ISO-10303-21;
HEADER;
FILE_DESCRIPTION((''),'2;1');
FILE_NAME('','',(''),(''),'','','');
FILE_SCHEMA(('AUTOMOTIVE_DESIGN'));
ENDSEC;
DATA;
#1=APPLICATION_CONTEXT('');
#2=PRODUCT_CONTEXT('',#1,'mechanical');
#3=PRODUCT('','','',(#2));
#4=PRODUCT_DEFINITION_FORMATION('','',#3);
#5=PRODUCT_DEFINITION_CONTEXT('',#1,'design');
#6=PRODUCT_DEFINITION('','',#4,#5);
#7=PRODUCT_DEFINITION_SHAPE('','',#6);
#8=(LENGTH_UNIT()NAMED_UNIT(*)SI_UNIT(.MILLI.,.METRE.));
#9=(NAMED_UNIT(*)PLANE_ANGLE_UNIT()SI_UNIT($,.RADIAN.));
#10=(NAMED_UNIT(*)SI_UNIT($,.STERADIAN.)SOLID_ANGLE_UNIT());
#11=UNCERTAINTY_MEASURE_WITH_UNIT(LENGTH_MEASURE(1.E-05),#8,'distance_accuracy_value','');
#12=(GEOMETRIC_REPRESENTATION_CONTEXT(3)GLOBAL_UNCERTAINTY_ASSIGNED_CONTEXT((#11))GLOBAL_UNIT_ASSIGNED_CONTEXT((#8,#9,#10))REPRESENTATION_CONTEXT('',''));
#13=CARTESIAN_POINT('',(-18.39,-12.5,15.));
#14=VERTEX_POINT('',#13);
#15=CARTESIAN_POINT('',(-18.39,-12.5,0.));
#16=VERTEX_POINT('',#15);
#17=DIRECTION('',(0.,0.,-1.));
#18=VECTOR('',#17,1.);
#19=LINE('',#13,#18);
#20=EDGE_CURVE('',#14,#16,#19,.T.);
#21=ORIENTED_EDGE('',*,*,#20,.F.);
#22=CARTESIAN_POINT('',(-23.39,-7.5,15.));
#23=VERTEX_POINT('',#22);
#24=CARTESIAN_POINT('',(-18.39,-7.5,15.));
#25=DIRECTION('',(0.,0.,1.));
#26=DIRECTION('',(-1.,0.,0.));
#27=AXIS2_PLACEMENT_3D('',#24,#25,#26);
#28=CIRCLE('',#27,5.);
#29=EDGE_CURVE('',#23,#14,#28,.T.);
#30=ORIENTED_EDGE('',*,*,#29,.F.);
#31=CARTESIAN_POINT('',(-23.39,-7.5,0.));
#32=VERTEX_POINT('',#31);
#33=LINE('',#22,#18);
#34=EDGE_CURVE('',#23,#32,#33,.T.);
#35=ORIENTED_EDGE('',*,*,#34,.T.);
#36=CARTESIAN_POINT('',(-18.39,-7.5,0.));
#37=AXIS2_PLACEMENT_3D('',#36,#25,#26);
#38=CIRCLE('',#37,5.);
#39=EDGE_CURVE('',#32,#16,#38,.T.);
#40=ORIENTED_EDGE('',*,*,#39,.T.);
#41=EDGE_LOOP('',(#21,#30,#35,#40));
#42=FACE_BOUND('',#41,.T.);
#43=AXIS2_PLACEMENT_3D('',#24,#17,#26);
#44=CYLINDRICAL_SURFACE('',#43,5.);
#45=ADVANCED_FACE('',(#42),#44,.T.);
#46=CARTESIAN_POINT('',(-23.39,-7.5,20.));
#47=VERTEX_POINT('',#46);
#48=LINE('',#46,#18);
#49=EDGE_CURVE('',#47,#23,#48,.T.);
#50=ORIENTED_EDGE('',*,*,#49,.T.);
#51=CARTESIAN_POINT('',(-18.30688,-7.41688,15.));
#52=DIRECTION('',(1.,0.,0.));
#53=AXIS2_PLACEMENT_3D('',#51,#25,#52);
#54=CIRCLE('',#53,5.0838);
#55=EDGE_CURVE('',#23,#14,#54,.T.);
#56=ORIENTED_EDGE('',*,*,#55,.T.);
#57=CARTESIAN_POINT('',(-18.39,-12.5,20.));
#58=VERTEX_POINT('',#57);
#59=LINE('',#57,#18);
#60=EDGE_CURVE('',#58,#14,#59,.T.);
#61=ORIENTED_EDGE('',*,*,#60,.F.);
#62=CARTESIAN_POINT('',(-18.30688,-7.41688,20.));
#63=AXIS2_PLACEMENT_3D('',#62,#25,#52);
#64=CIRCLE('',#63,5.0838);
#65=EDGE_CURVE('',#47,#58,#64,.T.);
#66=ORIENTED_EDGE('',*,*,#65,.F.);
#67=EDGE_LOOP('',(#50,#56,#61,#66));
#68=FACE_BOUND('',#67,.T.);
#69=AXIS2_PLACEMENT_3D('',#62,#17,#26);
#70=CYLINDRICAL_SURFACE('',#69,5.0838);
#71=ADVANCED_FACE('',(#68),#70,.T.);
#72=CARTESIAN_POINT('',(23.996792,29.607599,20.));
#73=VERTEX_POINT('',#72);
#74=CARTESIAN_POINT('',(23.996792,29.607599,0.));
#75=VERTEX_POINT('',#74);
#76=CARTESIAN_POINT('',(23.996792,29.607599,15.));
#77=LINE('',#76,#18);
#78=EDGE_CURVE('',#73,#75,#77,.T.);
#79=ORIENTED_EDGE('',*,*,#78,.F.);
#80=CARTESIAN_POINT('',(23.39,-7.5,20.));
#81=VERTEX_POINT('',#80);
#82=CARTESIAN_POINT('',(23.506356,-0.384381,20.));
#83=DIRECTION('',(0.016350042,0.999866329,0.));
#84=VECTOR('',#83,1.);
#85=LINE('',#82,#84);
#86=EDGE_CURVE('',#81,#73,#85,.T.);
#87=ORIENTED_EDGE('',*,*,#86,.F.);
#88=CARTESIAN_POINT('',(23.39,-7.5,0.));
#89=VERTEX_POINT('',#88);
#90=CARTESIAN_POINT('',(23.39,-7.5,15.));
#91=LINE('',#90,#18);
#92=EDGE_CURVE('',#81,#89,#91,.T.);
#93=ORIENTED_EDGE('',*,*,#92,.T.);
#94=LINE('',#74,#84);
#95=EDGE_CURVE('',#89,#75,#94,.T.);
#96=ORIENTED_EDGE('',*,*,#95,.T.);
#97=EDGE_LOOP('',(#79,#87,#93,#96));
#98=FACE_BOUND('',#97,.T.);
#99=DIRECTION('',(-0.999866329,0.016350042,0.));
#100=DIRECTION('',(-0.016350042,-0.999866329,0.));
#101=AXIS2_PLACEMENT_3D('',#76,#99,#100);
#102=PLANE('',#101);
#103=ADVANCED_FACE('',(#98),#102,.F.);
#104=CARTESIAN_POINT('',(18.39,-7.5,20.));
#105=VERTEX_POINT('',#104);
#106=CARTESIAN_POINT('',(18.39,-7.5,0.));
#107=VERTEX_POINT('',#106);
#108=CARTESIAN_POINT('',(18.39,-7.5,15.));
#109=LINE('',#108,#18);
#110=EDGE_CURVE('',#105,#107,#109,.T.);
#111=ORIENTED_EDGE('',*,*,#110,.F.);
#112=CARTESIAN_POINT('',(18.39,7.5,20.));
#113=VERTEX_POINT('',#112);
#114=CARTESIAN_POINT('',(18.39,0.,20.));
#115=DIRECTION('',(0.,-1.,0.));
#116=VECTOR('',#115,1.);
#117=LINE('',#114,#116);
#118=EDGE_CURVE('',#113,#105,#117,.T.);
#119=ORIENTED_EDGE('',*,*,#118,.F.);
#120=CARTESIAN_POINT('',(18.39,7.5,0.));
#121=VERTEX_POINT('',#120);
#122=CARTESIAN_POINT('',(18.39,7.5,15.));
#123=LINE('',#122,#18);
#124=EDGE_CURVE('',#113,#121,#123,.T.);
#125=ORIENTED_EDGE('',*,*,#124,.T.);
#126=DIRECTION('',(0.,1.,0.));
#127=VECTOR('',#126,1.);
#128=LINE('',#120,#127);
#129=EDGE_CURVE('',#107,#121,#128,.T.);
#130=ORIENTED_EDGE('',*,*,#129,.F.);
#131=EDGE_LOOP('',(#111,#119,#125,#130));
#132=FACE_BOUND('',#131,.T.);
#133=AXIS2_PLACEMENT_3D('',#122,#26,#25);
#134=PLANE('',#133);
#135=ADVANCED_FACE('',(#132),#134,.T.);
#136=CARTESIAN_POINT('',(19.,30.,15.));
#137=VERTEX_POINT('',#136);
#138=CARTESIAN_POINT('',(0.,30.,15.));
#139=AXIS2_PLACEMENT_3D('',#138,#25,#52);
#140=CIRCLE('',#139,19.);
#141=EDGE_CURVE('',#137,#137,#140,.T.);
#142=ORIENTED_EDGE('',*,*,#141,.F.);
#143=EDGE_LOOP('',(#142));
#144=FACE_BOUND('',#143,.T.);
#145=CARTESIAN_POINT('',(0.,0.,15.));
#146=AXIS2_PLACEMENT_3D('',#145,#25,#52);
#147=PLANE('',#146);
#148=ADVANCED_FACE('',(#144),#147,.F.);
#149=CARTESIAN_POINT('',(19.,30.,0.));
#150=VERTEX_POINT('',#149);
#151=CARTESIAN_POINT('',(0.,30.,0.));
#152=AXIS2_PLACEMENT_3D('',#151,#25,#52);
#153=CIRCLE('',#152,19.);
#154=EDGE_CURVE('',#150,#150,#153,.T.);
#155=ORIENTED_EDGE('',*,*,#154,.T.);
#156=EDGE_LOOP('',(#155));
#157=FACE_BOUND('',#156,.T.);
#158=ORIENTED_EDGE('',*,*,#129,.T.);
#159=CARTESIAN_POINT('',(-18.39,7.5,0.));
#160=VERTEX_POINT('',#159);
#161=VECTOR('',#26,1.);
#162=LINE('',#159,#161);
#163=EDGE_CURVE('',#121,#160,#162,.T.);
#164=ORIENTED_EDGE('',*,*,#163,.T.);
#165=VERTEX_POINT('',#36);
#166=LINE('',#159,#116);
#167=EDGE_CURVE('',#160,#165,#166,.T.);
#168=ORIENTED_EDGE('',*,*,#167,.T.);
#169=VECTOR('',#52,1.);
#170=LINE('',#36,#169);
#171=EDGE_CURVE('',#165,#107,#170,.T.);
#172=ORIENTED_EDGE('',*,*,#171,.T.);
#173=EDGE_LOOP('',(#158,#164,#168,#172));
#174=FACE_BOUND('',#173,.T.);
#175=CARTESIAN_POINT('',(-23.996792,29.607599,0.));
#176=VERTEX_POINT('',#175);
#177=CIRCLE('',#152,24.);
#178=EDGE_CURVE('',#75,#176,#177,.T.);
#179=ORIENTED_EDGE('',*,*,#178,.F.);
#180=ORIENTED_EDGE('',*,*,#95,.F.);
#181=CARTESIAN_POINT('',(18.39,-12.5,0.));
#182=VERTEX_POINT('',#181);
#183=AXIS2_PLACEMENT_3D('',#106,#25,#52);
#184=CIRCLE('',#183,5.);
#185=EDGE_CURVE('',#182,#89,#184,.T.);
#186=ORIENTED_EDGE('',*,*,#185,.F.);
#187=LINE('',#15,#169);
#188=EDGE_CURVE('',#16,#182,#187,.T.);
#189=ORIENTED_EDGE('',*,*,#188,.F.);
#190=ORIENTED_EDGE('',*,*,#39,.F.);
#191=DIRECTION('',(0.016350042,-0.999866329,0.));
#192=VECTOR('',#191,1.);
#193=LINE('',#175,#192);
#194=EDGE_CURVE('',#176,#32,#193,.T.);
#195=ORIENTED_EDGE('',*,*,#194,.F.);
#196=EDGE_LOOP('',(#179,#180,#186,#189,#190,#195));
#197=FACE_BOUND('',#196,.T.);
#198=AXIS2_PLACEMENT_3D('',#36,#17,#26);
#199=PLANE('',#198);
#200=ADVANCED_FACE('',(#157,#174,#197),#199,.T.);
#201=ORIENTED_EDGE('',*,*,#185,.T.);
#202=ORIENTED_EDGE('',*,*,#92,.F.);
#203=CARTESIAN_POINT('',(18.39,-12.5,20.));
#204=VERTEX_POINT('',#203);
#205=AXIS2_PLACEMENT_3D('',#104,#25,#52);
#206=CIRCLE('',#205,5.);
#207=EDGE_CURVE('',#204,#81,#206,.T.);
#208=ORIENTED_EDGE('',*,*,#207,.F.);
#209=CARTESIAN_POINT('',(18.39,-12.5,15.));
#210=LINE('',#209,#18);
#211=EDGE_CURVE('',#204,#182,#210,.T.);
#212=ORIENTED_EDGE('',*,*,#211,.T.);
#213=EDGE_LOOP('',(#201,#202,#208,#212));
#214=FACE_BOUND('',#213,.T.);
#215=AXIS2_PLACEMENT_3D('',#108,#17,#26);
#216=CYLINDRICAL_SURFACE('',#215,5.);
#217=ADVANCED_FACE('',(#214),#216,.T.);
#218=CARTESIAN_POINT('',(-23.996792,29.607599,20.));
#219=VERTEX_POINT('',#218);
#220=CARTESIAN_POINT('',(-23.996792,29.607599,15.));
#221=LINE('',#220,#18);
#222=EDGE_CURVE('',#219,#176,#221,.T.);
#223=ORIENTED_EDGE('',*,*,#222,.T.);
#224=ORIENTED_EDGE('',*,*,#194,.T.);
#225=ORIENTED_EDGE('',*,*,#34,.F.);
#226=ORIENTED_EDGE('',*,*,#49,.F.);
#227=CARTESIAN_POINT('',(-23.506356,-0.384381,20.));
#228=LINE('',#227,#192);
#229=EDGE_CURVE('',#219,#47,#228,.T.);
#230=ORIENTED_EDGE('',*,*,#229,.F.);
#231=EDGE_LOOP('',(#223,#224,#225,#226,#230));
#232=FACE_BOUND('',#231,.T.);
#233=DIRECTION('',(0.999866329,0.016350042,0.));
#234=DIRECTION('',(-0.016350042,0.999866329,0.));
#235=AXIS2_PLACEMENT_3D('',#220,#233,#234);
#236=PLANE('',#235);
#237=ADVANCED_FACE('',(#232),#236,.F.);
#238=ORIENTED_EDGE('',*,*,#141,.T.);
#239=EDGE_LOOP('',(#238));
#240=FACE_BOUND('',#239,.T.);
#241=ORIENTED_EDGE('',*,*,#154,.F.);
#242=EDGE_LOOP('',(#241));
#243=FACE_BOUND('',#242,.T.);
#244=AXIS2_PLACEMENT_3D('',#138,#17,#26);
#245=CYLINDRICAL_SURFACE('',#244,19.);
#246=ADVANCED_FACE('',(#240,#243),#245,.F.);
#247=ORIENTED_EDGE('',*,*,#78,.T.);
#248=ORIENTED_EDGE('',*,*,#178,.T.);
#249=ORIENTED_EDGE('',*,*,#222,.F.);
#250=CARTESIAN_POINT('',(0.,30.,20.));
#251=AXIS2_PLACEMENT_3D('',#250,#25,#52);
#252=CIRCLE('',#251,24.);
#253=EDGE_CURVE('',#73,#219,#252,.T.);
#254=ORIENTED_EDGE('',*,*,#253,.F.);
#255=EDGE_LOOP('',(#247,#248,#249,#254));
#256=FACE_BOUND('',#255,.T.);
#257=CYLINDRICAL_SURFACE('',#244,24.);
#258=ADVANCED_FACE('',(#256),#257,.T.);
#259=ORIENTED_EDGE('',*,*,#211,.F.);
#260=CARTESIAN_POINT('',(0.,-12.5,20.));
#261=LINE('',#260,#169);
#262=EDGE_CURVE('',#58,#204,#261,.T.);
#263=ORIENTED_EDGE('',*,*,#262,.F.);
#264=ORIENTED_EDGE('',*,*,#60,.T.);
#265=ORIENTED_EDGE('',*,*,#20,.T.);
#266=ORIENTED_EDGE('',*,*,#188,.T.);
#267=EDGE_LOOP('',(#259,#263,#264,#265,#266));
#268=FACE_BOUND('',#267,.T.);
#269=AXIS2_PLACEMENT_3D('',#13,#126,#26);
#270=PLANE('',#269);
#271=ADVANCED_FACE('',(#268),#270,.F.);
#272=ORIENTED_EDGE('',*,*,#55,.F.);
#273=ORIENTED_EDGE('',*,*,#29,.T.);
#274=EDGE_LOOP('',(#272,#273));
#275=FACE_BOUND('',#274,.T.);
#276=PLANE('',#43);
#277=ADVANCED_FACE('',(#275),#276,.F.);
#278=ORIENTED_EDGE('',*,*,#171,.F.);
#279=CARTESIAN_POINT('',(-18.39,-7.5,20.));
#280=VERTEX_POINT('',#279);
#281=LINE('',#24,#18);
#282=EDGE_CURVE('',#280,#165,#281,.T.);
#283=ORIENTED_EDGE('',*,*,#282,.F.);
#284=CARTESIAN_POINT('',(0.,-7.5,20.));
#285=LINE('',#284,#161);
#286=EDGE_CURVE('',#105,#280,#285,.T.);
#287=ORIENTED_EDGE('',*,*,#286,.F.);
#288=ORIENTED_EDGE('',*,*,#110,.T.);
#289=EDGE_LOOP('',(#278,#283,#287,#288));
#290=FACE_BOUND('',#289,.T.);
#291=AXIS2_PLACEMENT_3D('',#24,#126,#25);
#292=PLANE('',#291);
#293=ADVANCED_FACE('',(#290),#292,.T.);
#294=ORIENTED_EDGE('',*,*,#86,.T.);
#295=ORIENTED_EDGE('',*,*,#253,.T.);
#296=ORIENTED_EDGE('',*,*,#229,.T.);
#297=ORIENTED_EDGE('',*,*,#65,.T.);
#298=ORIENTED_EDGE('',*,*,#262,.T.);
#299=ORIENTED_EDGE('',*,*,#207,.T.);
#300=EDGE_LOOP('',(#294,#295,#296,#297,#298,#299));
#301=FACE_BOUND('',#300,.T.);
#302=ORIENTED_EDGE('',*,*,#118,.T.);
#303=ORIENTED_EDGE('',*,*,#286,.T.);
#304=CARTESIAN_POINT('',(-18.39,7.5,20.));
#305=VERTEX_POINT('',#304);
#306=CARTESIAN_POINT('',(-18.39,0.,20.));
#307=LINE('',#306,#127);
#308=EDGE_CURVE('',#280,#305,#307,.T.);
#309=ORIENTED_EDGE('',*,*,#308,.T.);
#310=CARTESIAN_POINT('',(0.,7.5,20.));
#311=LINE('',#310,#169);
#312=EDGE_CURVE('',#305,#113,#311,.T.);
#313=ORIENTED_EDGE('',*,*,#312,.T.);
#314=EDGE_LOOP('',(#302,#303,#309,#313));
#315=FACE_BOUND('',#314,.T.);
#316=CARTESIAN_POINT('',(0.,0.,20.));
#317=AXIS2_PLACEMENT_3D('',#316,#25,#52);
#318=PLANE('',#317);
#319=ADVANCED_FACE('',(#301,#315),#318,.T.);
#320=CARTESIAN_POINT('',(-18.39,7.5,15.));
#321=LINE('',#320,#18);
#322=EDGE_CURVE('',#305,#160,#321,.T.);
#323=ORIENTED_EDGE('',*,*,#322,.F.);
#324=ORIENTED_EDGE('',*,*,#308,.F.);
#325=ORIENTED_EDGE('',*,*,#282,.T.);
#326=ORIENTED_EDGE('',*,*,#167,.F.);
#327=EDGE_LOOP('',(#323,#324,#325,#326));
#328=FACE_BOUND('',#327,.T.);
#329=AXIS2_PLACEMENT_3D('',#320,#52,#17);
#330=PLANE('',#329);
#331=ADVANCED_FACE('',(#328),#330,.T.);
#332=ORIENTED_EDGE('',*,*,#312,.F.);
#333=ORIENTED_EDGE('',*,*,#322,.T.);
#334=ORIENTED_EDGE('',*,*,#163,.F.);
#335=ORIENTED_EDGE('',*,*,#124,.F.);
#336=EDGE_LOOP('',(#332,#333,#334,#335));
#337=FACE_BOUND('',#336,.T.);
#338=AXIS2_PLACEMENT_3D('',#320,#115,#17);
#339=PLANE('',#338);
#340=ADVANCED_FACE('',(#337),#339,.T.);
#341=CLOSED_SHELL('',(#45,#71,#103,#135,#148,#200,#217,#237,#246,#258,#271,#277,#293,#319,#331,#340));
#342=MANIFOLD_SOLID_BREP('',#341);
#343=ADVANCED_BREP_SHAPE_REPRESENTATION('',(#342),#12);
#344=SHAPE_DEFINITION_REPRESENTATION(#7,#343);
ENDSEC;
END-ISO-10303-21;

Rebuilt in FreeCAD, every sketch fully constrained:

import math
import FreeCAD as App
import Part
import Sketcher
from FreeCAD import Vector
Q = App.Units.Quantity


def add_polygon(sketch, points):
    """Adds a closed chain of lines whose ends are joined by coincident constraints."""
    first, n = sketch.GeometryCount, len(points)
    for a, b in zip(points, points[1:] + points[:1]):
        sketch.addGeometry(Part.LineSegment(App.Vector(*a, 0), App.Vector(*b, 0)), False)
    for i in range(n):
        sketch.addConstraint(Sketcher.Constraint("Coincident", first + i, 2, first + (i + 1) % n, 1))

doc = App.newDocument("Part")
body = doc.addObject("PartDesign::Body", "Body")

# Sketch on XY plane
sketch1 = body.newObject("Sketcher::SketchObject", "Sketch")
sketch1.AttachmentSupport = (doc.getObject("XY_Plane"), [""])
sketch1.MapMode = "FlatFace"
sketch1.addGeometry(Part.LineSegment(Vector(-18.39, -12.5, 0), Vector(18.39, -12.5, 0)), False)  # 0
sketch1.addGeometry(Part.ArcOfCircle(Part.Circle(Vector(18.39, -7.5, 0), Vector(0, 0, 1), 5), math.radians(-90), math.radians(0)), False)  # 1
sketch1.addGeometry(Part.LineSegment(Vector(23.39, -7.5, 0), Vector(23.996792, 29.607599, 0)), False)  # 2
sketch1.addGeometry(Part.ArcOfCircle(Part.Circle(Vector(0, 30, 0), Vector(0, 0, 1), 24), math.radians(-0.93683), math.radians(180.93683)), False)  # 3
sketch1.addGeometry(Part.LineSegment(Vector(-23.996792, 29.607599, 0), Vector(-23.39, -7.5, 0)), False)  # 4
sketch1.addGeometry(Part.ArcOfCircle(Part.Circle(Vector(-18.39, -7.5, 0), Vector(0, 0, 1), 5), math.radians(180), math.radians(270)), False)  # 5
add_polygon(sketch1, [(18.39, -7.5), (-18.39, -7.5), (-18.39, 7.5), (18.39, 7.5)])  # lines 6-9
sketch1.addGeometry(Part.Circle(Vector(0, 30, 0), Vector(0, 0, 1), 19), False)  # 10
sketch1.addConstraint([
    Sketcher.Constraint("Tangent", 0, 2, 1, 1),
    Sketcher.Constraint("Coincident", 1, 2, 2, 1),
    Sketcher.Constraint("Tangent", 2, 2, 3, 1),
    Sketcher.Constraint("Tangent", 3, 2, 4, 1),
    Sketcher.Constraint("Coincident", 4, 2, 5, 1),
    Sketcher.Constraint("Tangent", 5, 2, 0, 1),
    Sketcher.Constraint("Horizontal", 0),
    Sketcher.Constraint("Horizontal", 6),
    Sketcher.Constraint("Vertical", 7),
    Sketcher.Constraint("Horizontal", 8),
    Sketcher.Constraint("Vertical", 9),
    Sketcher.Constraint("Coincident", 10, 3, 3, 3),
    Sketcher.Constraint("Coincident", 6, 2, 5, 3),
    Sketcher.Constraint("Coincident", 9, 2, 1, 3),
    Sketcher.Constraint("Symmetric", 6, 2, 8, 2, -1, 1),
    Sketcher.Constraint("PointOnObject", 3, 3, -2),
    Sketcher.Constraint("Horizontal", 5, 3, 1, 2),
    Sketcher.Constraint("Horizontal", 1, 2, 4, 2),
    Sketcher.Constraint("Diameter", 10, Q("38 mm")),
    Sketcher.Constraint("Radius", 1, Q("5 mm")),
    Sketcher.Constraint("Radius", 3, Q("24 mm")),
    Sketcher.Constraint("DistanceY", 7, 1, 7, 2, Q("15 mm")),
    Sketcher.Constraint("DistanceY", -1, 1, 3, 3, Q("30 mm")),
    Sketcher.Constraint("DistanceX", 0, 1, 0, 2, Q("36.78 mm")),
])
pad1 = body.newObject("PartDesign::Pad", "Pad")
pad1.Profile = sketch1
pad1.Length = 15

# Sketch on XY plane
sketch2 = body.newObject("Sketcher::SketchObject", "Sketch001")
sketch2.AttachmentSupport = (doc.getObject("XY_Plane"), [""])
sketch2.MapMode = "FlatFace"
sketch2.AttachmentOffset = App.Placement(Vector(0, 0, 15), App.Rotation())
sketch2.addGeometry(Part.LineSegment(Vector(-23.996792, 29.607599, 0), Vector(-23.39, -7.5, 0)), False)  # 0
sketch2.addGeometry(Part.ArcOfCircle(Part.Circle(Vector(-18.30688, -7.41688, 0), Vector(0, 0, 1), 5.0838), math.radians(-179.06317), math.radians(-90.93683)), False)  # 1
sketch2.addGeometry(Part.LineSegment(Vector(-18.39, -12.5, 0), Vector(18.39, -12.5, 0)), False)  # 2
sketch2.addGeometry(Part.ArcOfCircle(Part.Circle(Vector(18.39, -7.5, 0), Vector(0, 0, 1), 5), math.radians(-90), math.radians(0)), False)  # 3
sketch2.addGeometry(Part.LineSegment(Vector(23.39, -7.5, 0), Vector(23.996792, 29.607599, 0)), False)  # 4
sketch2.addGeometry(Part.ArcOfCircle(Part.Circle(Vector(0, 30, 0), Vector(0, 0, 1), 24), math.radians(-0.93683), math.radians(180.93683)), False)  # 5
add_polygon(sketch2, [(18.39, -7.5), (-18.39, -7.5), (-18.39, 7.5), (18.39, 7.5)])  # lines 6-9
sketch2.addConstraint([
    Sketcher.Constraint("Tangent", 0, 2, 1, 1),
    Sketcher.Constraint("Coincident", 1, 2, 2, 1),
    Sketcher.Constraint("Tangent", 2, 2, 3, 1),
    Sketcher.Constraint("Coincident", 3, 2, 4, 1),
    Sketcher.Constraint("Tangent", 4, 2, 5, 1),
    Sketcher.Constraint("Tangent", 5, 2, 0, 1),
    Sketcher.Constraint("Horizontal", 2),
    Sketcher.Constraint("Horizontal", 6),
    Sketcher.Constraint("Vertical", 7),
    Sketcher.Constraint("Horizontal", 8),
    Sketcher.Constraint("Vertical", 9),
    Sketcher.Constraint("Coincident", 9, 2, 3, 3),
    Sketcher.Constraint("Symmetric", 6, 2, 8, 2, -1, 1),
    Sketcher.Constraint("Symmetric", 0, 2, 3, 2, -2),
    Sketcher.Constraint("PointOnObject", 5, 3, -2),
    Sketcher.Constraint("Horizontal", 3, 3, 0, 2),
    Sketcher.Constraint("Vertical", 1, 2, 6, 2),
    Sketcher.Constraint("Radius", 3, Q("5 mm")),
    Sketcher.Constraint("Radius", 5, Q("24 mm")),
    Sketcher.Constraint("DistanceY", 7, 1, 7, 2, Q("15 mm")),
    Sketcher.Constraint("DistanceY", -1, 1, 5, 3, Q("30 mm")),
    Sketcher.Constraint("DistanceX", 2, 1, 2, 2, Q("36.78 mm")),
])
pad2 = body.newObject("PartDesign::Pad", "Pad001")
pad2.Profile = sketch2
pad2.Length = 5

doc.recompute()
